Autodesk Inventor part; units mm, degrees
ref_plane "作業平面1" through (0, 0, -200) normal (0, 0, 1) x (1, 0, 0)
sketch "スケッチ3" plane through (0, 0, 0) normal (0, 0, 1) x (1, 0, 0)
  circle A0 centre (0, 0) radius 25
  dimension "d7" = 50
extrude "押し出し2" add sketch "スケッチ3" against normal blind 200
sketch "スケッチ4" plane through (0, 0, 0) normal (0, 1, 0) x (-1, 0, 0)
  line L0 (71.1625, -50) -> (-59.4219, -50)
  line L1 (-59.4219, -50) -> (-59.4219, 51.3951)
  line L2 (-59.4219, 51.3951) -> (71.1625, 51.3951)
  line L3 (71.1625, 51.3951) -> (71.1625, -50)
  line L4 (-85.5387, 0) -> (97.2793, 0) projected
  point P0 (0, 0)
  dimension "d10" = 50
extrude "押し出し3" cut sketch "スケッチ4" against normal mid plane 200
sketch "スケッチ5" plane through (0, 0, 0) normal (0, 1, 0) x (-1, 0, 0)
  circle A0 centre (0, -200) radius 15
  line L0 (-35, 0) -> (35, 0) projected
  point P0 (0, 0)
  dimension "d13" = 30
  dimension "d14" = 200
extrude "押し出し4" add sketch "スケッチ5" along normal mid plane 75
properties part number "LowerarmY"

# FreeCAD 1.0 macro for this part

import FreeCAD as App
import Part
import Sketcher

V = App.Vector


def add_polygon(sketch, points):
    """Adds a closed chain of lines whose ends are joined by coincident constraints."""
    first, n = sketch.GeometryCount, len(points)
    for a, b in zip(points, points[1:] + points[:1]):
        sketch.addGeometry(Part.LineSegment(App.Vector(*a, 0), App.Vector(*b, 0)), False)
    for i in range(n):
        sketch.addConstraint(Sketcher.Constraint("Coincident", first + i, 2, first + (i + 1) % n, 1))

doc = App.newDocument("Part")
body = doc.addObject("PartDesign::Body", "Body")

# Sketch on XY plane
sketch1 = body.newObject("Sketcher::SketchObject", "Sketch")
sketch1.AttachmentSupport = (doc.getObject("XY_Plane"), [""])
sketch1.MapMode = "FlatFace"
sketch1.addGeometry(Part.Circle(V(0, 0, 0), V(0, 0, 1), 25), False)
sketch1.addConstraint(Sketcher.Constraint("Coincident", 0, 3, -1, 1))
sketch1.addConstraint(Sketcher.Constraint("Diameter", 0, 50.0))
pad1 = body.newObject("PartDesign::Pad", "Pad")
pad1.Profile = sketch1
pad1.Length = 200
pad1.Reversed = True

# Sketch on XZ plane
sketch2 = body.newObject("Sketcher::SketchObject", "Sketch001")
sketch2.AttachmentSupport = (doc.getObject("XZ_Plane"), [""])
sketch2.MapMode = "FlatFace"
add_polygon(sketch2, [(59, -50), (-71, -50), (-71, 51), (59, 51)])  # lines 0-3
sketch2.addConstraint(Sketcher.Constraint("Horizontal", 0))
sketch2.addConstraint(Sketcher.Constraint("Vertical", 1))
sketch2.addConstraint(Sketcher.Constraint("Horizontal", 2))
sketch2.addConstraint(Sketcher.Constraint("Vertical", 3))
sketch2.addConstraint(Sketcher.Constraint("DistanceY", 0, 2, -1, 1, 50.0))
sketch2.addConstraint(Sketcher.Constraint("DistanceY", 1, 1, 1, 2, 101.395))
sketch2.addConstraint(Sketcher.Constraint("DistanceX", 0, 2, 0, 1, 130.5844))
sketch2.addConstraint(Sketcher.Constraint("DistanceX", -1, 1, 2, 2, 59.422))
pocket1 = body.newObject("PartDesign::Pocket", "Pocket")
pocket1.Profile = sketch2
pocket1.Length = 200
pocket1.Midplane = True

# Sketch on XZ plane
sketch3 = body.newObject("Sketcher::SketchObject", "Sketch002")
sketch3.AttachmentSupport = (doc.getObject("XZ_Plane"), [""])
sketch3.MapMode = "FlatFace"
sketch3.addGeometry(Part.Circle(V(0, -200, 0), V(0, 0, 1), 15), False)
sketch3.addConstraint(Sketcher.Constraint("PointOnObject", 0, 3, -2))
sketch3.addConstraint(Sketcher.Constraint("Diameter", 0, 30.0))
sketch3.addConstraint(Sketcher.Constraint("DistanceY", 0, 3, -1, 1, 200.0))
pad2 = body.newObject("PartDesign::Pad", "Pad001")
pad2.Profile = sketch3
pad2.Length = 75
pad2.Midplane = True

doc.recompute()
